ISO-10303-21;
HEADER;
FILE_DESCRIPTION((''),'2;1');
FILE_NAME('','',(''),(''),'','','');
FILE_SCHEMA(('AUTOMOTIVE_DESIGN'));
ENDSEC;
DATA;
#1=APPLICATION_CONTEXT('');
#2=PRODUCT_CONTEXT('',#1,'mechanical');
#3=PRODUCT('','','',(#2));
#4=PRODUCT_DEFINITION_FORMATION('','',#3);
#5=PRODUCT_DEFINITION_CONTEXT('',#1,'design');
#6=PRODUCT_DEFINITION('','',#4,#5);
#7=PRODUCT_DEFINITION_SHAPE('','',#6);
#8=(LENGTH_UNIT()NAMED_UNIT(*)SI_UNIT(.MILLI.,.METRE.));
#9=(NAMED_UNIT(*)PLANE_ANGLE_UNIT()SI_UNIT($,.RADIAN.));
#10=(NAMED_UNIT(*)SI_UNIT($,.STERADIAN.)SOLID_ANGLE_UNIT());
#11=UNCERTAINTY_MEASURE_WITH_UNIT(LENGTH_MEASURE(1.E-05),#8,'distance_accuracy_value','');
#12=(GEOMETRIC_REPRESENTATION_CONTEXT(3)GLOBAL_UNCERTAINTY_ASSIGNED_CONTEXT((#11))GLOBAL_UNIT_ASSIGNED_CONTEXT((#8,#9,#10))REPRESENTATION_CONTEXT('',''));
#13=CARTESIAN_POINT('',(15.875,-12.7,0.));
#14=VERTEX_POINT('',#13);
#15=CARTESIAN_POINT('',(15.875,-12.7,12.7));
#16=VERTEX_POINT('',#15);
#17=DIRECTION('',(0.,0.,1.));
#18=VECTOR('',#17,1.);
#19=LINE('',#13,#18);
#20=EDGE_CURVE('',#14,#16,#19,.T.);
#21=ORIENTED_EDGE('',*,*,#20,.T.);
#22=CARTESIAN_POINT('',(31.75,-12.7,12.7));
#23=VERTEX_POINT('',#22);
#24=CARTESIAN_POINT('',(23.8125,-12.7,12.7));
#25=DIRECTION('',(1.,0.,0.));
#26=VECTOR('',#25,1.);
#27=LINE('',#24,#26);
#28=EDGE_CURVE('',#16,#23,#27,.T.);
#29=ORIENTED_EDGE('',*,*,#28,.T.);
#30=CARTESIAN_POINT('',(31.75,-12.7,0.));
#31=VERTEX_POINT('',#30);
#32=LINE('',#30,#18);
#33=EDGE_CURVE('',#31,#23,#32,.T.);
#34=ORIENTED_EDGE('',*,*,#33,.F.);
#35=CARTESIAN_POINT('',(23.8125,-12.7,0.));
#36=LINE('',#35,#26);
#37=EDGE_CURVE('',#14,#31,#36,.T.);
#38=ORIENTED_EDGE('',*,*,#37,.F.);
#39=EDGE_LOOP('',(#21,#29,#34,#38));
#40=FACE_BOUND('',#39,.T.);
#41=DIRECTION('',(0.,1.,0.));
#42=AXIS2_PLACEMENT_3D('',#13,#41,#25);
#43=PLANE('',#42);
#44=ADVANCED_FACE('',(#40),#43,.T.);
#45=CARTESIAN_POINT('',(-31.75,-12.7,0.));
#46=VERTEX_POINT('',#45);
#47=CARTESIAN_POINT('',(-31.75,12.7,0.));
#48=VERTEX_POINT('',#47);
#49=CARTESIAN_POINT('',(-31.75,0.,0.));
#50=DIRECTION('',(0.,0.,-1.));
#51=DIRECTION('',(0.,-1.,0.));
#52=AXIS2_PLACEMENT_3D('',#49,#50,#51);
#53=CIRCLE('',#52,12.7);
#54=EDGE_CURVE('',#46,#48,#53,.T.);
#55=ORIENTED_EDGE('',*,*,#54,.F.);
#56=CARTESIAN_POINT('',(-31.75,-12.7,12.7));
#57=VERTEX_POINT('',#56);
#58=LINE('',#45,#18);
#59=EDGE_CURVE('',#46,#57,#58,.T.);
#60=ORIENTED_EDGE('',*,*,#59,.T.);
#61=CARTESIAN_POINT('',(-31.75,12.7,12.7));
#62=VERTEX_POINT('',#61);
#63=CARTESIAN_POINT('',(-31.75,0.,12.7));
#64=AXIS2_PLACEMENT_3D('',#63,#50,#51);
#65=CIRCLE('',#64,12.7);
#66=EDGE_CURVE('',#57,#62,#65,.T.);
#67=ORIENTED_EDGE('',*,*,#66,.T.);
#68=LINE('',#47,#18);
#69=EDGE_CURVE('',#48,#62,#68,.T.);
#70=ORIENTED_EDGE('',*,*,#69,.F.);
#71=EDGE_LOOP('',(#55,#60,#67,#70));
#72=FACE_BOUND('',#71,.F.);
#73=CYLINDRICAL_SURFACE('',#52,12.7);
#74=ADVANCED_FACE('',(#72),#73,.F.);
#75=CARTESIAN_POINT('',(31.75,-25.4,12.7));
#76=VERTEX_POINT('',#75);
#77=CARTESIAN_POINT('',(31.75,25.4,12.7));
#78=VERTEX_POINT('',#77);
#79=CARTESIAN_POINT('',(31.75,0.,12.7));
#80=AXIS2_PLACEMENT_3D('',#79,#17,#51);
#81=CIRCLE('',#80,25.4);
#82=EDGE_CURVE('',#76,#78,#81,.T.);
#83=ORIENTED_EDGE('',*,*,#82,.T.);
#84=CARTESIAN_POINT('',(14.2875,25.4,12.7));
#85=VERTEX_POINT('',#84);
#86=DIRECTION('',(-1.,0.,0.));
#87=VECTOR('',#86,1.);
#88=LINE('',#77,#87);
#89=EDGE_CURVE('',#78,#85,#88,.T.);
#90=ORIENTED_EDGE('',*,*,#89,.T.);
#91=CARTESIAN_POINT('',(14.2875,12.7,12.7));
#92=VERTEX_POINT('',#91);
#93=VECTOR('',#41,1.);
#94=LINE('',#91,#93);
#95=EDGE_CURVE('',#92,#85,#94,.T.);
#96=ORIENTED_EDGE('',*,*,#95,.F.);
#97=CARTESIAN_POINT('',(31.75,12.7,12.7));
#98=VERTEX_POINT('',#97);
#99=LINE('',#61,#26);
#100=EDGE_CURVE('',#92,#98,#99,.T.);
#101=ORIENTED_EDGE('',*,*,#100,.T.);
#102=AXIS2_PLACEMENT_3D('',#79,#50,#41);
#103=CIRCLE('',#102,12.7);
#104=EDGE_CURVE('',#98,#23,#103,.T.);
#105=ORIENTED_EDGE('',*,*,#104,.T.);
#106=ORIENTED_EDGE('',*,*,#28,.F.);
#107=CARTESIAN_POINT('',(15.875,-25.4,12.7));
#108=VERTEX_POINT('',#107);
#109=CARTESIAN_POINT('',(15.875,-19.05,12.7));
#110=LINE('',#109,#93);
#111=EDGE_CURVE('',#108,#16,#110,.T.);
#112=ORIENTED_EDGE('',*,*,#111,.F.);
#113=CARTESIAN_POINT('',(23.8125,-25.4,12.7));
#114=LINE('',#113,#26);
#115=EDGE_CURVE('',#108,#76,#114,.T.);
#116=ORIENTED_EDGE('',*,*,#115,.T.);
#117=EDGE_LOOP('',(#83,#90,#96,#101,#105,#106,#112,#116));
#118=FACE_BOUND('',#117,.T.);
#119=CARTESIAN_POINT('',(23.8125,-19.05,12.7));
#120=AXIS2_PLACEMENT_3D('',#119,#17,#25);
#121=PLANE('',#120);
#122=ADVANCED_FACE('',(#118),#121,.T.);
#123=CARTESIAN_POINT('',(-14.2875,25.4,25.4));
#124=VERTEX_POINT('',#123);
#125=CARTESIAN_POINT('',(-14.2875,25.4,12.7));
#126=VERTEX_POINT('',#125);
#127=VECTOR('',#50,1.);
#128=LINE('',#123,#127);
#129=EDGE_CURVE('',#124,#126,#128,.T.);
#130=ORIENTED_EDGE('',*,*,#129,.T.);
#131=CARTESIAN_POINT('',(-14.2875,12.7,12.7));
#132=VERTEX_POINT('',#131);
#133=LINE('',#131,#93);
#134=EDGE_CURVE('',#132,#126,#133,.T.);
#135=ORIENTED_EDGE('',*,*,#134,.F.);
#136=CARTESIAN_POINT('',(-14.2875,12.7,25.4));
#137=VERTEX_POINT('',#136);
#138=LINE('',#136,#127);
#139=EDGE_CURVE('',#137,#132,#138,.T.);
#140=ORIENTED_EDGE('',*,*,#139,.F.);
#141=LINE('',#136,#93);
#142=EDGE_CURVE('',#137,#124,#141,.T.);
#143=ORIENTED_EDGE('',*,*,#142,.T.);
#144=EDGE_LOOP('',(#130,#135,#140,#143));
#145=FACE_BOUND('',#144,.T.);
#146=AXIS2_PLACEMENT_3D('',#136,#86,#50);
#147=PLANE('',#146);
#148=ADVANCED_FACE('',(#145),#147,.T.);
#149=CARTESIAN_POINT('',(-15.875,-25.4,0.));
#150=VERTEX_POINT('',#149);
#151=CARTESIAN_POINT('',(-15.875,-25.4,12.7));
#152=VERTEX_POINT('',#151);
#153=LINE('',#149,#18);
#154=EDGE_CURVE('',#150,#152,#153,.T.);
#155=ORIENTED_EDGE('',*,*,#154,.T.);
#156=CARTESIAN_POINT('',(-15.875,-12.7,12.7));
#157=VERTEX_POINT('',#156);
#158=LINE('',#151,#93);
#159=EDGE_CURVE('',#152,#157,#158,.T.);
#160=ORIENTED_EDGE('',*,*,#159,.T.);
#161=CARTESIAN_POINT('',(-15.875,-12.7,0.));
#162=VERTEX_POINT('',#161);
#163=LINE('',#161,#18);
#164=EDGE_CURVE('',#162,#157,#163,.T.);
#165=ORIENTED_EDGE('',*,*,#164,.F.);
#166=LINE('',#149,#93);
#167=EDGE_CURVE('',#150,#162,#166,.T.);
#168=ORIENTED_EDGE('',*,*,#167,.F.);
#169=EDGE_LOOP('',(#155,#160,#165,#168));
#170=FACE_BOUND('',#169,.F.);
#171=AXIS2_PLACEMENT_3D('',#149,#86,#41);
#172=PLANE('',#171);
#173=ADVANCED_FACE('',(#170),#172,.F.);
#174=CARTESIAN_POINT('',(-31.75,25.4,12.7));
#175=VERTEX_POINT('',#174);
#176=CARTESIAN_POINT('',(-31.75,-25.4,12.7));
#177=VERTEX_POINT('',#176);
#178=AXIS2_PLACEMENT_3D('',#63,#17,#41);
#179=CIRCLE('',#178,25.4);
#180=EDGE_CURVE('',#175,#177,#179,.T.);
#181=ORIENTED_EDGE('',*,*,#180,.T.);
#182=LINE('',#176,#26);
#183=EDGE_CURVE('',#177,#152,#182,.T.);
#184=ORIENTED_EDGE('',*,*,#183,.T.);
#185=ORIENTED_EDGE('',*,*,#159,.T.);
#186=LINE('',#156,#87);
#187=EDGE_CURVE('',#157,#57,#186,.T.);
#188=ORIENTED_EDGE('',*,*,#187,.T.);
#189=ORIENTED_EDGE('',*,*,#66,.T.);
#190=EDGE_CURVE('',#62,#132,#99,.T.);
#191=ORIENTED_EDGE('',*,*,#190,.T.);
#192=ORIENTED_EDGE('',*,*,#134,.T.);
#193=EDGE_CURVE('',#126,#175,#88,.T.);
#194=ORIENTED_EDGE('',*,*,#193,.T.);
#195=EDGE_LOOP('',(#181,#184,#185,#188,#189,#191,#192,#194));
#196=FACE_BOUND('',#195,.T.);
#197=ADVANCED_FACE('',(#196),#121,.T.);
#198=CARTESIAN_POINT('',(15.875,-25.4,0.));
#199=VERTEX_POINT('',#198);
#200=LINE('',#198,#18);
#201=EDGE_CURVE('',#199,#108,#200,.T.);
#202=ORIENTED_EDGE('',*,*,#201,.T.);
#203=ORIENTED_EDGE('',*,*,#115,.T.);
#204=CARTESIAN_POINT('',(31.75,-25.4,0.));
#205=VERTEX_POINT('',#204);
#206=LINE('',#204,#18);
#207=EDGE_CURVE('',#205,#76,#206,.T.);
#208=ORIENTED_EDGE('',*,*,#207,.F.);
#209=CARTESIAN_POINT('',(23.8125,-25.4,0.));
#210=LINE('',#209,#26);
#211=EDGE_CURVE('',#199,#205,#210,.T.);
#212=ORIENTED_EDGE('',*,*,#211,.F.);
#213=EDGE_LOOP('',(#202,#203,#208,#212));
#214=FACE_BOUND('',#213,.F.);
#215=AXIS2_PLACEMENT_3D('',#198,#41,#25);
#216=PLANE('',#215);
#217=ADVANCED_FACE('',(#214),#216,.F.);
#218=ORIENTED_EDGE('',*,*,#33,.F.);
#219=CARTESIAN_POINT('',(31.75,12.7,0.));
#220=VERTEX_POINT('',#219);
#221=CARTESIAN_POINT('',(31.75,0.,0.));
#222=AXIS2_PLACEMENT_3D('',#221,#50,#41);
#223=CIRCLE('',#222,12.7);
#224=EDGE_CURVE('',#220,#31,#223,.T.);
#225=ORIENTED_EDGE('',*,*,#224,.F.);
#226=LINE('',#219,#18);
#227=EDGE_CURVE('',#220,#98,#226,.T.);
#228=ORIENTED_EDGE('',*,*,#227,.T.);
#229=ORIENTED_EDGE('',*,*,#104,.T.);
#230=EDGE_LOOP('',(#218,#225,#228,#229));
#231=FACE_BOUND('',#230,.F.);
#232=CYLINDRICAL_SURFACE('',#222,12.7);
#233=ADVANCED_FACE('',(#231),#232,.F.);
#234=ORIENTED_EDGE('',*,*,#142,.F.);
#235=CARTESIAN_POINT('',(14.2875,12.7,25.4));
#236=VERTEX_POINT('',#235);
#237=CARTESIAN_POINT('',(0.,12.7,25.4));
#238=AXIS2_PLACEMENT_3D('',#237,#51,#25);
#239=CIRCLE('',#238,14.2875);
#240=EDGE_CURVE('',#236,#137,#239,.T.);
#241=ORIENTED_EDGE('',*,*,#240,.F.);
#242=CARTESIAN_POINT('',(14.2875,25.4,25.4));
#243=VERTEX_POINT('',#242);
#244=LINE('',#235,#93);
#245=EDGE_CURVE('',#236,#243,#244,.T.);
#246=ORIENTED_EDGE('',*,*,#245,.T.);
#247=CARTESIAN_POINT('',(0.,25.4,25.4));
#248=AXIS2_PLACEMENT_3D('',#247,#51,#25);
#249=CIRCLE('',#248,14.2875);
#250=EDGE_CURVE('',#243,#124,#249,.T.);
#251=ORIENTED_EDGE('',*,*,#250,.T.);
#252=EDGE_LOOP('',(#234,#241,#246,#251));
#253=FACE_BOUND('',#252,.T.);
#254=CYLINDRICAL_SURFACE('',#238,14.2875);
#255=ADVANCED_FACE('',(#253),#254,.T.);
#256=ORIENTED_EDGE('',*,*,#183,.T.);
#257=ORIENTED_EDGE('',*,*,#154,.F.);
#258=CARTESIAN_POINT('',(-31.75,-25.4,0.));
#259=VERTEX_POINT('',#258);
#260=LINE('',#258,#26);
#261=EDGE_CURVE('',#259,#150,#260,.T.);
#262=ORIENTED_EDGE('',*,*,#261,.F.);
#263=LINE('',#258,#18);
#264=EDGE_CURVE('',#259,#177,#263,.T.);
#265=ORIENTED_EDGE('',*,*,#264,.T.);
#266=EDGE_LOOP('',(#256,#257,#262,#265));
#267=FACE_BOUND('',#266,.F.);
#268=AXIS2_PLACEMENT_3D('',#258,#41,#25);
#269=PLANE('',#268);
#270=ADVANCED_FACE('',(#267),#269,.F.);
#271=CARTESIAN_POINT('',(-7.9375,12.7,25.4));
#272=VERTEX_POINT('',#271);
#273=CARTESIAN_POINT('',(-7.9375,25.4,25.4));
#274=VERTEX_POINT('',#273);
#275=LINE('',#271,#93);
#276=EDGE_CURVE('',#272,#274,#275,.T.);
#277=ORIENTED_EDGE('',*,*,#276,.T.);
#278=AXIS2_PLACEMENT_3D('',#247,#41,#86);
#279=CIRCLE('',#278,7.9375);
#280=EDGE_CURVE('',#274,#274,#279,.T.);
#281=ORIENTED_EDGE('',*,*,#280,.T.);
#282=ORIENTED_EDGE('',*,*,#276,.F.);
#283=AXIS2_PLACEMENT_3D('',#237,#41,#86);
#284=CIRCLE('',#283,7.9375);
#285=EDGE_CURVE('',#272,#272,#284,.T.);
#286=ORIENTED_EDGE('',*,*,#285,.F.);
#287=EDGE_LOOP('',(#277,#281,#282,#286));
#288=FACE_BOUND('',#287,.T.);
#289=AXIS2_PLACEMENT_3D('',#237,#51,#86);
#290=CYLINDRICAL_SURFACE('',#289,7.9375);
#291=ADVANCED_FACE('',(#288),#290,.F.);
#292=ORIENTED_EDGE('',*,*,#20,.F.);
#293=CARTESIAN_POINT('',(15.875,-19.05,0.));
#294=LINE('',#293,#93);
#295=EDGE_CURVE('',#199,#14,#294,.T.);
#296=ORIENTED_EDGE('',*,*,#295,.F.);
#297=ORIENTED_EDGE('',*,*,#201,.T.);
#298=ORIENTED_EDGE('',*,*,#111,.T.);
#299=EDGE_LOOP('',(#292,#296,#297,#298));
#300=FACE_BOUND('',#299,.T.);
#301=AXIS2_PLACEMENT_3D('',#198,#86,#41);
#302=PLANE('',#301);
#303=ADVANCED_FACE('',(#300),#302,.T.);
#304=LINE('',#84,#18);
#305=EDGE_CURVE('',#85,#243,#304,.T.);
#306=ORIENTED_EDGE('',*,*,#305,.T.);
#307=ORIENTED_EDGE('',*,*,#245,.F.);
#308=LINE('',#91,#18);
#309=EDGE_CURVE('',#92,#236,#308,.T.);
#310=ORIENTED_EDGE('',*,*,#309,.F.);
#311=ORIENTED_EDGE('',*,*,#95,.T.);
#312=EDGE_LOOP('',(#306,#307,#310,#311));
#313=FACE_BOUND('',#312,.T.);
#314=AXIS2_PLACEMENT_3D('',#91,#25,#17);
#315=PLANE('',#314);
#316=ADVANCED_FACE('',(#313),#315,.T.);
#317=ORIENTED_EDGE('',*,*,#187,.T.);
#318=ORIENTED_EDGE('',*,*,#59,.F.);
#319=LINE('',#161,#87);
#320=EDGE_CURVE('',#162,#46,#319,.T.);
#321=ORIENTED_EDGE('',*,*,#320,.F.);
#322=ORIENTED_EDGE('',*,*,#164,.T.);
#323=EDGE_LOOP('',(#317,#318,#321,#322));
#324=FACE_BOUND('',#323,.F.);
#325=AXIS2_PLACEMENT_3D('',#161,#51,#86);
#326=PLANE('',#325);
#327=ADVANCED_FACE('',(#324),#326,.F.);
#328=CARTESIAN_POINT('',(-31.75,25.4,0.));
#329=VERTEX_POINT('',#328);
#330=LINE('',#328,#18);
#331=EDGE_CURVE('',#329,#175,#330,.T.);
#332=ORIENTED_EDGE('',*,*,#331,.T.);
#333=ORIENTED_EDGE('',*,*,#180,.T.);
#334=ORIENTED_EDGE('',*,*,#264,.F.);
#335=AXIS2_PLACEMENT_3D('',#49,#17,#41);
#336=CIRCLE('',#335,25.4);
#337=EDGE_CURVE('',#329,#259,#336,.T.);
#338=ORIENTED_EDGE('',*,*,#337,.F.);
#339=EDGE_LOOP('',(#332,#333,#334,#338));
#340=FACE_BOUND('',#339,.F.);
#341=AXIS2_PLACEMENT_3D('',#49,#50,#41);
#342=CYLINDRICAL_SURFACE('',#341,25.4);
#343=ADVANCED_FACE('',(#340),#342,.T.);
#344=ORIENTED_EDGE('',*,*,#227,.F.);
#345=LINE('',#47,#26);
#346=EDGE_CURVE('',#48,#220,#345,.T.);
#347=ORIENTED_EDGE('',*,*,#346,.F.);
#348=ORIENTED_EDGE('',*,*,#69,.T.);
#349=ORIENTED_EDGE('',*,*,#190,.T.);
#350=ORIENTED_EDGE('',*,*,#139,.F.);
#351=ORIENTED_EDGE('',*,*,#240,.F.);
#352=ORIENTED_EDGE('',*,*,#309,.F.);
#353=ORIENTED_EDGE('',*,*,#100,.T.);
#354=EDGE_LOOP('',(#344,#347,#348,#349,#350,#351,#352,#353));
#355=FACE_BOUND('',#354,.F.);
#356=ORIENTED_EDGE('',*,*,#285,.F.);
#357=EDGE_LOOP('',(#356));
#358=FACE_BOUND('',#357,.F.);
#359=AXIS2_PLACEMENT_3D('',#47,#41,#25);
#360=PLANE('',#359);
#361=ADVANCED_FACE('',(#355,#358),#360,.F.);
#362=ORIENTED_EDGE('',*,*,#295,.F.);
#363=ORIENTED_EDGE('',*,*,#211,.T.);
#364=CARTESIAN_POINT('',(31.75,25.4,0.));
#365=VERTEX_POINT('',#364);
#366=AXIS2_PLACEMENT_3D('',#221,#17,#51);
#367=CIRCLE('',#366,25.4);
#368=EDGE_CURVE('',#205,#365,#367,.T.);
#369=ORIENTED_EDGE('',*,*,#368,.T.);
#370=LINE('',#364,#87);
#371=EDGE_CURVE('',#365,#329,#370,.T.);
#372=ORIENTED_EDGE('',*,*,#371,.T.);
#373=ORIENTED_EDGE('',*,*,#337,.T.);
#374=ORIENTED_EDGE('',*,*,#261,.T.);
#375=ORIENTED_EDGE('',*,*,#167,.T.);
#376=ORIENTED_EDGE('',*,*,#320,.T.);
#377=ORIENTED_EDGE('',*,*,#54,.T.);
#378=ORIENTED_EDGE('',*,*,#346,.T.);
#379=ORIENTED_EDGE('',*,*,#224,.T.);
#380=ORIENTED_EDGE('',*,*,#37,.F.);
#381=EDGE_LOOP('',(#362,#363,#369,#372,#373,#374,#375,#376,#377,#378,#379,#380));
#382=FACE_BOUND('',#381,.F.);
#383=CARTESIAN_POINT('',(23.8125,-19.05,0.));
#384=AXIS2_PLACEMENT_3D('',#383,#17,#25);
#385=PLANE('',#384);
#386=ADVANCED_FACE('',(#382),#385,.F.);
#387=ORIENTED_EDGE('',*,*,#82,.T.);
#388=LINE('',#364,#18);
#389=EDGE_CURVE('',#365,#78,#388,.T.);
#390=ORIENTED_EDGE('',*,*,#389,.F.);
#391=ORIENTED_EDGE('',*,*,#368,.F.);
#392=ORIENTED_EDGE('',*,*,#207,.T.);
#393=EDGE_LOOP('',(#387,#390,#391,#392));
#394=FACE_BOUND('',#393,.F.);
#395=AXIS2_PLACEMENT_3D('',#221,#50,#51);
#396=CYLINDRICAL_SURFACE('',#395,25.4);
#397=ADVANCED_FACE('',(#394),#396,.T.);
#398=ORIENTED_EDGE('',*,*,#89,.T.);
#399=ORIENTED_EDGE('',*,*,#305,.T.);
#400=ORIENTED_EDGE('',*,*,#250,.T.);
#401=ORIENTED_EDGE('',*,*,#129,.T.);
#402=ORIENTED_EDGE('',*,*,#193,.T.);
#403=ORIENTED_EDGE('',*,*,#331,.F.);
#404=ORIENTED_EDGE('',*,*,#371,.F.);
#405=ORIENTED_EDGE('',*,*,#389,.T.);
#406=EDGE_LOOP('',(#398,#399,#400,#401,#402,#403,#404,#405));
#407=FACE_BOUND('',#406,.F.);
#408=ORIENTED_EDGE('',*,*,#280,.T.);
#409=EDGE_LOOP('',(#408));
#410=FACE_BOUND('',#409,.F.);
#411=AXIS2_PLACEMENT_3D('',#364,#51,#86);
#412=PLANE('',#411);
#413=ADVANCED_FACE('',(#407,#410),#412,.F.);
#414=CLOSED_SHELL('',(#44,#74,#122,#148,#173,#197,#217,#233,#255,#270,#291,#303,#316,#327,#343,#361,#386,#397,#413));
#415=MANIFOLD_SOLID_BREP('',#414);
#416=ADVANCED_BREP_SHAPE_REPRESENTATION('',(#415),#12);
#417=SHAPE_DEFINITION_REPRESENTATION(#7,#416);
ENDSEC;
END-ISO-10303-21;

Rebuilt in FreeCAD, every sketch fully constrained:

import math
import FreeCAD as App
import Part
import Sketcher
from FreeCAD import Vector
Q = App.Units.Quantity

doc = App.newDocument("Part")
params = doc.addObject("Spreadsheet::Sheet", "Params")
for row, (alias, value) in enumerate([
    ("sketch1_radius", "1 in"),
    ("sketch1_radius2", "0.5 in"),
    ("sketch1_width", "2.5 in"),
    ("sketch1_width2", "0.625 in"),
    ("pad1_length", "0.5 in"),
    ("sketch2_diameter", "0.625 in"),
    ("sketch2_height", "0.5 in"),
    ("sketch2_radius", "0.5625 in"),
    ("pad2_length", "0.5 in"),
], start=1):
    params.set(f"A{row}", alias)
    params.set(f"B{row}", "=" + value)
    params.setAlias(f"B{row}", alias)

body = doc.addObject("PartDesign::Body", "Body")

sketch1 = body.newObject("Sketcher::SketchObject", "Sketch")
sketch1.AttachmentSupport = (doc.getObject("XY_Plane"), [""])
sketch1.MapMode = "FlatFace"
sketch1.addGeometry([
    Part.LineSegment(Vector(16, -13, 0), Vector(16, -25, 0)),
    Part.LineSegment(Vector(16, -25, 0), Vector(32, -25, 0)),
    Part.ArcOfCircle(Part.Circle(Vector(32, 0, 0), Vector(0, 0, 1), 25), math.radians(-90), math.radians(90)),
    Part.LineSegment(Vector(32, 25, 0), Vector(-32, 25, 0)),
    Part.ArcOfCircle(Part.Circle(Vector(-32, 0, 0), Vector(0, 0, 1), 25), math.radians(90), math.radians(270)),
    Part.LineSegment(Vector(-32, -25, 0), Vector(-16, -25, 0)),
    Part.LineSegment(Vector(-16, -25, 0), Vector(-16, -13, 0)),
    Part.LineSegment(Vector(-16, -13, 0), Vector(-32, -13, 0)),
    Part.ArcOfCircle(Part.Circle(Vector(-32, 0, 0), Vector(0, 0, 1), 13), math.radians(90), math.radians(270)),
    Part.LineSegment(Vector(-32, 13, 0), Vector(32, 13, 0)),
    Part.ArcOfCircle(Part.Circle(Vector(32, 0, 0), Vector(0, 0, 1), 13), math.radians(-90), math.radians(90)),
    Part.LineSegment(Vector(32, -13, 0), Vector(16, -13, 0)),
], False)
sketch1.addConstraint([
    Sketcher.Constraint("Coincident", 0, 2, 1, 1),
    Sketcher.Constraint("Tangent", 1, 2, 2, 1),
    Sketcher.Constraint("Tangent", 2, 2, 3, 1),
    Sketcher.Constraint("Tangent", 3, 2, 4, 1),
    Sketcher.Constraint("Tangent", 4, 2, 5, 1),
    Sketcher.Constraint("Coincident", 5, 2, 6, 1),
    Sketcher.Constraint("Coincident", 6, 2, 7, 1),
    Sketcher.Constraint("Tangent", 7, 2, 8, 2),
    Sketcher.Constraint("Tangent", 8, 1, 9, 1),
    Sketcher.Constraint("Tangent", 9, 2, 10, 2),
    Sketcher.Constraint("Tangent", 10, 1, 11, 1),
    Sketcher.Constraint("Coincident", 11, 2, 0, 1),
    Sketcher.Constraint("Vertical", 0),
    Sketcher.Constraint("Horizontal", 1),
    Sketcher.Constraint("Horizontal", 3),
    Sketcher.Constraint("Horizontal", 5),
    Sketcher.Constraint("Vertical", 6),
    Sketcher.Constraint("Horizontal", 7),
    Sketcher.Constraint("Horizontal", 9),
    Sketcher.Constraint("Horizontal", 11),
    Sketcher.Constraint("Coincident", 8, 3, 4, 3),
    Sketcher.Constraint("Coincident", 10, 3, 2, 3),
    Sketcher.Constraint("Equal", 2, 4),
    Sketcher.Constraint("Symmetric", 2, 3, 4, 3, -1, 1),
    Sketcher.Constraint("Equal", 1, 5),
    Sketcher.Constraint("Radius", 2, Q("1 in")),
    Sketcher.Constraint("Radius", 8, Q("0.5 in")),
    Sketcher.Constraint("DistanceX", 3, 2, 3, 1, Q("2.5 in")),
    Sketcher.Constraint("DistanceX", 1, 1, 1, 2, Q("0.625 in")),
])
sketch1.setExpression("Constraints[25]", "Params.sketch1_radius")
sketch1.setExpression("Constraints[26]", "Params.sketch1_radius2")
sketch1.setExpression("Constraints[27]", "Params.sketch1_width")
sketch1.setExpression("Constraints[28]", "Params.sketch1_width2")
pad1 = body.newObject("PartDesign::Pad", "Pad")
pad1.Profile = sketch1
pad1.setExpression("Length", "Params.pad1_length")

sketch2 = body.newObject("Sketcher::SketchObject", "Sketch001")
sketch2.AttachmentSupport = (doc.getObject("XZ_Plane"), [""])
sketch2.MapMode = "FlatFace"
sketch2.AttachmentOffset = App.Placement(Vector(0, 0, -0.5 * 25.4), App.Rotation())
sketch2.addGeometry([
    Part.LineSegment(Vector(-14, 25, 0), Vector(-14, 13, 0)),
    Part.LineSegment(Vector(-14, 13, 0), Vector(14, 13, 0)),
    Part.LineSegment(Vector(14, 13, 0), Vector(14, 25, 0)),
    Part.ArcOfCircle(Part.Circle(Vector(0, 25, 0), Vector(0, 0, 1), 14), math.radians(0), math.radians(180)),
    Part.Circle(Vector(0, 25, 0), Vector(0, 0, 1), 8),
], False)
sketch2.addConstraint([
    Sketcher.Constraint("Coincident", 0, 2, 1, 1),
    Sketcher.Constraint("Coincident", 1, 2, 2, 1),
    Sketcher.Constraint("Tangent", 2, 2, 3, 1),
    Sketcher.Constraint("Tangent", 3, 2, 0, 1),
    Sketcher.Constraint("Vertical", 0),
    Sketcher.Constraint("Horizontal", 1),
    Sketcher.Constraint("Vertical", 2),
    Sketcher.Constraint("Coincident", 4, 3, 3, 3),
    Sketcher.Constraint("PointOnObject", 3, 3, -2),
    Sketcher.Constraint("Diameter", 4, Q("0.625 in")),
    Sketcher.Constraint("DistanceY", 0, 2, 0, 1, Q("0.5 in")),
    Sketcher.Constraint("DistanceY", -1, 1, 3, 3, Q("1 in")),
    Sketcher.Constraint("Radius", 3, Q("0.5625 in")),
])
sketch2.setExpression("Constraints[9]", "Params.sketch2_diameter")
sketch2.setExpression("Constraints[10]", "Params.sketch2_height")
sketch2.setExpression("Constraints[12]", "Params.sketch2_radius")
pad2 = body.newObject("PartDesign::Pad", "Pad001")
pad2.Profile = sketch2
pad2.setExpression("Length", "Params.pad2_length")
pad2.Reversed = True

doc.recompute()
